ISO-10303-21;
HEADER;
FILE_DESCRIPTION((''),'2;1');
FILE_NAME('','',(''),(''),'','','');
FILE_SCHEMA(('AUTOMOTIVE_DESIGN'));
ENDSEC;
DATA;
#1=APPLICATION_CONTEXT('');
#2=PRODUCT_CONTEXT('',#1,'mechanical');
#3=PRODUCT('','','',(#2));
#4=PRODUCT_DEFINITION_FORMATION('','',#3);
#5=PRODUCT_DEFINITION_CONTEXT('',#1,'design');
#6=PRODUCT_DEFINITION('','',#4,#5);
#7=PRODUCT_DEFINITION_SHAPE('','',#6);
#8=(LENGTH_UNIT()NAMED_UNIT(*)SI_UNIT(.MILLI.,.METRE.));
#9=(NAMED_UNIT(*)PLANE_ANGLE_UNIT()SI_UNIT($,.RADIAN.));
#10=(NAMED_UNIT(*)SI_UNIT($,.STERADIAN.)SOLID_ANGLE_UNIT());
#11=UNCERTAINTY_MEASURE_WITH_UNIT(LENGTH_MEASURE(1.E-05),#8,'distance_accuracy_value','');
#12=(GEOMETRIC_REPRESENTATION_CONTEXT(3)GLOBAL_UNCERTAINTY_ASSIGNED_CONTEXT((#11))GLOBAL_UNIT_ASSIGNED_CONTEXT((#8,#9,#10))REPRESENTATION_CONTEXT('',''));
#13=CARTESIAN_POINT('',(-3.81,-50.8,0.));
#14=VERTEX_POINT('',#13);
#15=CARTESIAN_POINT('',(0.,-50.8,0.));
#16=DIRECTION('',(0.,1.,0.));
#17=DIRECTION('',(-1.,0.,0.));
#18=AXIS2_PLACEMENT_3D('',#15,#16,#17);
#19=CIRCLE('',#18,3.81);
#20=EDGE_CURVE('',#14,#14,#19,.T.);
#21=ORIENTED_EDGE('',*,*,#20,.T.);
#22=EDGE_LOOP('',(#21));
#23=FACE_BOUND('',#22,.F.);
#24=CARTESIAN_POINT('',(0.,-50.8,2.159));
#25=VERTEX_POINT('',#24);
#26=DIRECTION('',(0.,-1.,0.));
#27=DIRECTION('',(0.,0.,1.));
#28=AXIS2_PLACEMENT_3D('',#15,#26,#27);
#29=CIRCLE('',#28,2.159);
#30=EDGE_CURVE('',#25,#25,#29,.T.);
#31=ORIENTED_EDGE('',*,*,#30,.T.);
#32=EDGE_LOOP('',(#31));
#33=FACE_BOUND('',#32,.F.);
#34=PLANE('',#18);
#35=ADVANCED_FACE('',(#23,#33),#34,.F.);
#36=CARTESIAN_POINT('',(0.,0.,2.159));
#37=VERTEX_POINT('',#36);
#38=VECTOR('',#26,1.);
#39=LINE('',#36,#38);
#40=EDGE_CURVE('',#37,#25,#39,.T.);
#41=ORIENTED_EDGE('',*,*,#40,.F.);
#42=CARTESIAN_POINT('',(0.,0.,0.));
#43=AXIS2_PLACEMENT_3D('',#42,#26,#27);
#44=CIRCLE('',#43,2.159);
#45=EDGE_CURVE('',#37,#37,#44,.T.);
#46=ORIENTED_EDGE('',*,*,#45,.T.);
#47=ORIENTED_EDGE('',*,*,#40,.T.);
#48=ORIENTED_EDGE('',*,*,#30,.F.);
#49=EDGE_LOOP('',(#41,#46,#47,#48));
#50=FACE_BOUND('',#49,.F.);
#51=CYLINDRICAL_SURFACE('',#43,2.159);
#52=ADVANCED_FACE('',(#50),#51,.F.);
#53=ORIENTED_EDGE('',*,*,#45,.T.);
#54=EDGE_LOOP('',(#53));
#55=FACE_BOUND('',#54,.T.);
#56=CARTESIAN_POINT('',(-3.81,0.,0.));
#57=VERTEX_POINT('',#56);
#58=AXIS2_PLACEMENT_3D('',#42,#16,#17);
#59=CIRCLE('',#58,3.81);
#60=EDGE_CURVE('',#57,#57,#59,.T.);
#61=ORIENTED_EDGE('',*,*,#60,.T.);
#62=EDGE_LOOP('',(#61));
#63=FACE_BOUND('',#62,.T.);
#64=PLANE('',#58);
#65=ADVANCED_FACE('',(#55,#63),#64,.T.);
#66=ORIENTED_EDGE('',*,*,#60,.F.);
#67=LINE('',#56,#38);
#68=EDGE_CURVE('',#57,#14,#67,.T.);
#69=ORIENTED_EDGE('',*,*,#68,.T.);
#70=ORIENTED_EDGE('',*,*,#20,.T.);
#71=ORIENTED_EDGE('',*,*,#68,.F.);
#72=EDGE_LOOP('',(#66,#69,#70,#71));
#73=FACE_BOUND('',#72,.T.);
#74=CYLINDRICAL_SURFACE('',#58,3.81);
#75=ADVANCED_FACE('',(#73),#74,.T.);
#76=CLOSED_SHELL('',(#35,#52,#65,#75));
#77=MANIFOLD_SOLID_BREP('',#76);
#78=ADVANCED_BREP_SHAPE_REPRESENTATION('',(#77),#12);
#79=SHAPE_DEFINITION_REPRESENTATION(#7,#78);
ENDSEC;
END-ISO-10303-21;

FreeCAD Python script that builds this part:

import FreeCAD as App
import Part
import Sketcher
Q = App.Units.Quantity

doc = App.newDocument("Part")
body = doc.addObject("PartDesign::Body", "Body")

# Sketch on XZ plane
sketch1 = doc.addObject("Sketcher::SketchObject", "Sketch")
body.addObject(sketch1)
sketch1.AttachmentSupport = (doc.XZ_Plane, [""])
sketch1.MapMode = "FlatFace"
sketch1.addGeometry(Part.Circle(App.Vector(0, 0, 0), App.Vector(0, 0, 1), 3.81), False)
sketch1.addConstraint([
    Sketcher.Constraint("Coincident", 0, 3, -1, 1),
    Sketcher.Constraint("Diameter", 0, Q("0.3 in")),
])
pad1 = doc.addObject("PartDesign::Pad", "Pad")
body.addObject(pad1)
pad1.Profile = sketch1
pad1.Length = Q("2 in")

# Sketch on XZ plane
sketch2 = doc.addObject("Sketcher::SketchObject", "Sketch001")
body.addObject(sketch2)
sketch2.AttachmentSupport = (doc.XZ_Plane, [""])
sketch2.MapMode = "FlatFace"
sketch2.addGeometry(Part.Circle(App.Vector(0, 0, 0), App.Vector(0, 0, 1), 2.159), False)
sketch2.addConstraint([
    Sketcher.Constraint("Coincident", 0, 3, -1, 1),
    Sketcher.Constraint("Diameter", 0, Q("0.17 in")),
])
doc.recompute()
hole = doc.addObject("PartDesign::Hole", "Hole")
body.addObject(hole)
hole.Profile = sketch2
hole.ThreadType = "None"
hole.Diameter = Q("0.17 in")
hole.DepthType = "ThroughAll"
hole.Reversed = True

doc.recompute()
